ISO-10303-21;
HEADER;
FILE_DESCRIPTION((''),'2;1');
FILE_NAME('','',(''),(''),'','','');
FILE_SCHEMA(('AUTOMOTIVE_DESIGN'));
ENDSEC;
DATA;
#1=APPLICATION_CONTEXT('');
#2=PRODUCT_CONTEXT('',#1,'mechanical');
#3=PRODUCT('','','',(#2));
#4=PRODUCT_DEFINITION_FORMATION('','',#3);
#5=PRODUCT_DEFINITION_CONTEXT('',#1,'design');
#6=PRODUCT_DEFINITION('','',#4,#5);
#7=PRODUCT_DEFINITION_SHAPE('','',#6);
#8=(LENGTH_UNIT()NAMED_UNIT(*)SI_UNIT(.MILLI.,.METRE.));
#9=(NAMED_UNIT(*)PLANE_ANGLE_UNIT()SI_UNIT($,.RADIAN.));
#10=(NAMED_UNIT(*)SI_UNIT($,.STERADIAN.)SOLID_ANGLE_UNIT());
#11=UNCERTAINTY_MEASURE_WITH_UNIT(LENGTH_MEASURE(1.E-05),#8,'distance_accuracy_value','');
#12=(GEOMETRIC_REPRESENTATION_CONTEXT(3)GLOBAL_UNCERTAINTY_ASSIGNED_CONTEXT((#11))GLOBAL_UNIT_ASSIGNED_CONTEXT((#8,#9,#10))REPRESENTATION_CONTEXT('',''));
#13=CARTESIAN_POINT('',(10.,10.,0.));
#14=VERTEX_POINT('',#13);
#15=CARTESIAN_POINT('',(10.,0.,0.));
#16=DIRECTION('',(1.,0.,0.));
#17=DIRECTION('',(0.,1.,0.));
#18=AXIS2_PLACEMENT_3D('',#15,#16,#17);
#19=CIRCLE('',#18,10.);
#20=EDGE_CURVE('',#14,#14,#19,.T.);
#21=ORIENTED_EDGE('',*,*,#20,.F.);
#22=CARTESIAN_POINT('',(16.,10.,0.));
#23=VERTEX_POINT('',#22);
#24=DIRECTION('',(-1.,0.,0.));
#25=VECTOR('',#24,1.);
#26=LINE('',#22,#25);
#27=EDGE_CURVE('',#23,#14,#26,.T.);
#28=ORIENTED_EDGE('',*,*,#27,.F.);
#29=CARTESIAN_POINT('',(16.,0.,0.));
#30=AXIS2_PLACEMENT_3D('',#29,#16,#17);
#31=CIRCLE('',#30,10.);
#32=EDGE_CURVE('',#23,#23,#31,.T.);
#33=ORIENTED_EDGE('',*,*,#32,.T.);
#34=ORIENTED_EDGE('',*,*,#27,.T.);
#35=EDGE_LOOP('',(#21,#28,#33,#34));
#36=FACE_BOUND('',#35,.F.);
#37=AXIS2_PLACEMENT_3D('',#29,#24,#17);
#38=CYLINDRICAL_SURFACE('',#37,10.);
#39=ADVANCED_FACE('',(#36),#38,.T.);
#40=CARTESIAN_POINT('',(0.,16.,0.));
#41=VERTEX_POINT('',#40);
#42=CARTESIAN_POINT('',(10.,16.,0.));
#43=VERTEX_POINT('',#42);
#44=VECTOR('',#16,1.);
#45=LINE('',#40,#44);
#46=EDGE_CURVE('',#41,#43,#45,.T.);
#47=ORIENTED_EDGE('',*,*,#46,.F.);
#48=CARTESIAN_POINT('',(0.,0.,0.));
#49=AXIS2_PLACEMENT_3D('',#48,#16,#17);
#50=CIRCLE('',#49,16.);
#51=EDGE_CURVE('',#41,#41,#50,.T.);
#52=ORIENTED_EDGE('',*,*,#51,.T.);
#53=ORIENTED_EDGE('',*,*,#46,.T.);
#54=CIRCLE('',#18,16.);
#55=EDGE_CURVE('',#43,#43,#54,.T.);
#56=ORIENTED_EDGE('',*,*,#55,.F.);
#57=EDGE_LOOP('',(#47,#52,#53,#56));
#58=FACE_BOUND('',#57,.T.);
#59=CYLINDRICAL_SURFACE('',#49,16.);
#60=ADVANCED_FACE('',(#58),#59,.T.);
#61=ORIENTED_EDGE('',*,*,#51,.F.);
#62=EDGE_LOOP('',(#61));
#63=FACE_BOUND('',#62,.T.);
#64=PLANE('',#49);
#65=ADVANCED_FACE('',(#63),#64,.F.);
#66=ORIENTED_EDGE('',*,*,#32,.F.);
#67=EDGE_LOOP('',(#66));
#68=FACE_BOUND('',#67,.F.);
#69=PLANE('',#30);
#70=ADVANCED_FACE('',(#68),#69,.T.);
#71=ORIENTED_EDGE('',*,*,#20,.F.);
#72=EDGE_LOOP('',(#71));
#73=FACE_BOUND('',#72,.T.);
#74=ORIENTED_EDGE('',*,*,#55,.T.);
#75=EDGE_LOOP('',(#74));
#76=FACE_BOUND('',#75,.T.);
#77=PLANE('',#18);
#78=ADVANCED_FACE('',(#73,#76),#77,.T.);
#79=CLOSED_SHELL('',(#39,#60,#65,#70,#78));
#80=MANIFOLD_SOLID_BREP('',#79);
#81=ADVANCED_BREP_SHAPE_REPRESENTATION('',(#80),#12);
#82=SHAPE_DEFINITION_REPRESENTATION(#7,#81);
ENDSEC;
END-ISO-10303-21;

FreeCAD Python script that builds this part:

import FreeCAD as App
import Part
import Sketcher

V = App.Vector
Q = App.Units.Quantity


def add_polygon(sketch, points):
    """Adds a closed chain of lines whose ends are joined by coincident constraints."""
    first, n = sketch.GeometryCount, len(points)
    for a, b in zip(points, points[1:] + points[:1]):
        sketch.addGeometry(Part.LineSegment(App.Vector(*a, 0), App.Vector(*b, 0)), False)
    for i in range(n):
        sketch.addConstraint(Sketcher.Constraint("Coincident", first + i, 2, first + (i + 1) % n, 1))

doc = App.newDocument("Part")
body = doc.addObject("PartDesign::Body", "Body")

# Sketch on XY plane
sketch1 = body.newObject("Sketcher::SketchObject", "Sketch")
sketch1.AttachmentSupport = (doc.getObject("XY_Plane"), [""])
sketch1.MapMode = "FlatFace"
add_polygon(sketch1, [(0, 16), (0, 0), (16, 0), (16, 10), (10, 10), (10, 16)])  # lines 0-5
sketch1.addConstraint([
    Sketcher.Constraint("Vertical", 0),
    Sketcher.Constraint("Horizontal", 1),
    Sketcher.Constraint("Vertical", 2),
    Sketcher.Constraint("Horizontal", 3),
    Sketcher.Constraint("Vertical", 4),
    Sketcher.Constraint("Horizontal", 5),
    Sketcher.Constraint("Coincident", 0, 2, -1, 1),
    Sketcher.Constraint("Equal", 1, 0),
    Sketcher.Constraint("Equal", 5, 2),
    Sketcher.Constraint("DistanceX", 1, 1, 1, 2, Q("16 mm")),
    Sketcher.Constraint("DistanceX", 3, 2, 3, 1, Q("6 mm")),
])
revolution = body.newObject("PartDesign::Revolution", "Revolution")
revolution.Profile = sketch1
revolution.ReferenceAxis = (sketch1, ["H_Axis"])
revolution.Angle = 360

doc.recompute()
